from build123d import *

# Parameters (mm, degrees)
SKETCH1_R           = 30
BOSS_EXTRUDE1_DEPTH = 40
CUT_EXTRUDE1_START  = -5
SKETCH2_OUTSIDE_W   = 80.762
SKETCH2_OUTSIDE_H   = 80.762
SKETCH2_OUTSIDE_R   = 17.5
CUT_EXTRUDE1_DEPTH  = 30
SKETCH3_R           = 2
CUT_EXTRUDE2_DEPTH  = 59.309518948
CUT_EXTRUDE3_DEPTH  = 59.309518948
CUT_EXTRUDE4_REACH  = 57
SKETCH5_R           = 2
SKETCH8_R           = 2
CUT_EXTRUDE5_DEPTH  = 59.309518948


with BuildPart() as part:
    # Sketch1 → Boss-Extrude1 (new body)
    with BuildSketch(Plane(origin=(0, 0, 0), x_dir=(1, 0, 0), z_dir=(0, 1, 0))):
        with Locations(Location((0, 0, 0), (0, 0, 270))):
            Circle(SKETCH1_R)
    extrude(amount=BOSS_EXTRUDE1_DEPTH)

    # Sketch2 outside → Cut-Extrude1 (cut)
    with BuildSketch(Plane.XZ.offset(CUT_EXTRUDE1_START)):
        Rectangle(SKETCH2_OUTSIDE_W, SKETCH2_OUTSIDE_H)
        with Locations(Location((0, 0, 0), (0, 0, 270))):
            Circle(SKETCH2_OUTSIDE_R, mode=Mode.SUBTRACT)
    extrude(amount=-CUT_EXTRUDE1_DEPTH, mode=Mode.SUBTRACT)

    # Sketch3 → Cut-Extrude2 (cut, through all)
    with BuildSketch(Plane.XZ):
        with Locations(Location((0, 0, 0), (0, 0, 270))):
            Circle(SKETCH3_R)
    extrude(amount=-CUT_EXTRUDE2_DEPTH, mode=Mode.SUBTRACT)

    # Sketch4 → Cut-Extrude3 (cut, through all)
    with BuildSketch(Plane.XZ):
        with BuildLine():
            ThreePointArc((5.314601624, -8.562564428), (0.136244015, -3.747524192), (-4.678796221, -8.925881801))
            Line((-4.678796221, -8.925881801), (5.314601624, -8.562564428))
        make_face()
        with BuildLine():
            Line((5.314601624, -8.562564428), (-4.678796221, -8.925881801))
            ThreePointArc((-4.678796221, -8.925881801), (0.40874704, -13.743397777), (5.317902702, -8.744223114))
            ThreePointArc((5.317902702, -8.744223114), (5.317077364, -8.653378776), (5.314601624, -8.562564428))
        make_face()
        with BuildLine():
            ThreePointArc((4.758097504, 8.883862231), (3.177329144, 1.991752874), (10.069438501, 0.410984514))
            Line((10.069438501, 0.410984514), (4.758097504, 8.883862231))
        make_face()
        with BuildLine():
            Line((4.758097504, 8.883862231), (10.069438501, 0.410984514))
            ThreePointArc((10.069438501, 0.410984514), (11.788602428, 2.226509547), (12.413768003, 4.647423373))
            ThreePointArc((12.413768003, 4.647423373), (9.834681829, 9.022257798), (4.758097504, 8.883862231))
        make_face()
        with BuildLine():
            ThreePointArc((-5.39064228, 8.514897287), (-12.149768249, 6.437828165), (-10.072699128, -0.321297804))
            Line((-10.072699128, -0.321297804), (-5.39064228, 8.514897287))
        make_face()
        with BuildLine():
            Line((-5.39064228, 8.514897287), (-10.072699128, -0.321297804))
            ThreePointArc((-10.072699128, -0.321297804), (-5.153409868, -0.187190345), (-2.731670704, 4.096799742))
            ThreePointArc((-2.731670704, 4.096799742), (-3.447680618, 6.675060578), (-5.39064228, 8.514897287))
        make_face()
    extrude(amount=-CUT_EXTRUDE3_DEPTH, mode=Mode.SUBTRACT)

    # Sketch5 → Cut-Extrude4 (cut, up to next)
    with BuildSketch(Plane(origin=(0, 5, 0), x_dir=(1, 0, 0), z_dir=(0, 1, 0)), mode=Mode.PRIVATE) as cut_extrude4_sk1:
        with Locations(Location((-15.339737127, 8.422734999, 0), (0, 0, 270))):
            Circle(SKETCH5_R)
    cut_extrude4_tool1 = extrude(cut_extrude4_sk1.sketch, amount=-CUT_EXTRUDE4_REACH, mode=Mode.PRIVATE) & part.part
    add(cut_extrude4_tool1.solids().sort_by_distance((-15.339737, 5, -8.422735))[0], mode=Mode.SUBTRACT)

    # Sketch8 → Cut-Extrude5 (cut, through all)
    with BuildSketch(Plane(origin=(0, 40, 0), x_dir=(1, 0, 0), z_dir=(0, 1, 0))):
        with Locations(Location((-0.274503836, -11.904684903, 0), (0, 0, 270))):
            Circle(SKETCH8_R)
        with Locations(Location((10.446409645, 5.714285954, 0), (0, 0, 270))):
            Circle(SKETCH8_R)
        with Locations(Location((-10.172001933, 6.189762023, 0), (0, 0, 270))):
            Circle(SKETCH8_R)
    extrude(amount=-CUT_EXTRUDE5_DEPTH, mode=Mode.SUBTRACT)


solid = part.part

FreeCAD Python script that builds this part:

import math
import FreeCAD as App
import Part
import Sketcher

V = App.Vector
Q = App.Units.Quantity


def add_polygon(sketch, points):
    """Adds a closed chain of lines whose ends are joined by coincident constraints."""
    first, n = sketch.GeometryCount, len(points)
    for a, b in zip(points, points[1:] + points[:1]):
        sketch.addGeometry(Part.LineSegment(App.Vector(*a, 0), App.Vector(*b, 0)), False)
    for i in range(n):
        sketch.addConstraint(Sketcher.Constraint("Coincident", first + i, 2, first + (i + 1) % n, 1))

doc = App.newDocument("Part")
params = doc.addObject("Spreadsheet::Sheet", "Params")
for row, (alias, value) in enumerate([
    ("sketch1_diameter", "60 mm"),
    ("pad1_length", "40 mm"),
    ("sketch2_diameter", "35 mm"),
    ("pocket1_length", "30 mm"),
    ("sketch3_diameter", "4 mm"),
    ("sketch4_radius", "5 mm"),
    ("sketch4_radius2", "5.000002 mm"),
    ("sketch4_radius3", "5 mm"),
    ("sketch4_radius4", "5 mm"),
    ("sketch4_radius5", "5 mm"),
    ("sketch5_diameter", "4 mm"),
    ("sketch6_diameter", "4 mm"),
], start=1):
    params.set(f"A{row}", alias)
    params.set(f"B{row}", "=" + value)
    params.setAlias(f"B{row}", alias)

body = doc.addObject("PartDesign::Body", "Body")

# Sketch on XZ plane
sketch1 = body.newObject("Sketcher::SketchObject", "Sketch")
sketch1.AttachmentSupport = (doc.getObject("XZ_Plane"), [""])
sketch1.MapMode = "FlatFace"
sketch1.addGeometry(Part.Circle(V(0, 0, 0), V(0, 0, 1), 30), False)
sketch1.addConstraint(Sketcher.Constraint("Coincident", 0, 3, -1, 1))
sketch1.addConstraint(Sketcher.Constraint("Diameter", 0, Q("60 mm")))
sketch1.setExpression("Constraints[1]", "Params.sketch1_diameter")
pad1 = body.newObject("PartDesign::Pad", "Pad")
pad1.Profile = sketch1
pad1.setExpression("Length", "Params.pad1_length")
pad1.Reversed = True

# Sketch on XZ plane
sketch2 = body.newObject("Sketcher::SketchObject", "Sketch001")
sketch2.AttachmentSupport = (doc.getObject("XZ_Plane"), [""])
sketch2.MapMode = "FlatFace"
sketch2.AttachmentOffset = App.Placement(V(0, 0, -5), App.Rotation())
add_polygon(sketch2, [(-40, 40), (-40, -40), (40, -40), (40, 40)])  # lines 0-3
sketch2.addGeometry(Part.Circle(V(0, 0, 0), V(0, 0, 1), 18), False)  # 4
sketch2.addConstraint(Sketcher.Constraint("Vertical", 0))
sketch2.addConstraint(Sketcher.Constraint("Horizontal", 1))
sketch2.addConstraint(Sketcher.Constraint("Vertical", 2))
sketch2.addConstraint(Sketcher.Constraint("Horizontal", 3))
sketch2.addConstraint(Sketcher.Constraint("Coincident", 4, 3, -1, 1))
sketch2.addConstraint(Sketcher.Constraint("Symmetric", 0, 2, 2, 2, -1, 1))
sketch2.addConstraint(Sketcher.Constraint("Equal", 3, 0))
sketch2.addConstraint(Sketcher.Constraint("Diameter", 4, Q("35 mm")))
sketch2.addConstraint(Sketcher.Constraint("DistanceX", 1, 1, 1, 2, Q("80.762 mm")))
sketch2.setExpression("Constraints[11]", "Params.sketch2_diameter")
pocket1 = body.newObject("PartDesign::Pocket", "Pocket")
pocket1.Profile = sketch2
pocket1.setExpression("Length", "Params.pocket1_length")

# Sketch on XZ plane
sketch3 = body.newObject("Sketcher::SketchObject", "Sketch002")
sketch3.AttachmentSupport = (doc.getObject("XZ_Plane"), [""])
sketch3.MapMode = "FlatFace"
sketch3.addGeometry(Part.Circle(V(0, 0, 0), V(0, 0, 1), 2), False)
sketch3.addConstraint(Sketcher.Constraint("Coincident", 0, 3, -1, 1))
sketch3.addConstraint(Sketcher.Constraint("Diameter", 0, Q("4 mm")))
sketch3.setExpression("Constraints[1]", "Params.sketch3_diameter")
pocket2 = body.newObject("PartDesign::Pocket", "Pocket001")
pocket2.Profile = sketch3
pocket2.Type = "ThroughAll"

# Sketch on XZ plane
sketch4 = body.newObject("Sketcher::SketchObject", "Sketch003")
sketch4.AttachmentSupport = (doc.getObject("XZ_Plane"), [""])
sketch4.MapMode = "FlatFace"
sketch4.addGeometry(Part.ArcOfCircle(Part.Circle(V(0.317903, -8.744223, 0), V(0, 0, 1), 5), math.radians(2.082113), math.radians(182.082113)), False)
sketch4.addGeometry(Part.ArcOfCircle(Part.Circle(V(0.317903, -8.744223, 0), V(0, 0, 1), 5), math.radians(-177.917887), math.radians(0)), False)
sketch4.addGeometry(Part.ArcOfCircle(Part.Circle(V(0.317901, -8.744223, 0), V(0, 0, 1), 5.000002), math.radians(0), math.radians(2.082113)), False)
sketch4.addGeometry(Part.ArcOfCircle(Part.Circle(V(7.413768, 4.647423, 0), V(0, 0, 1), 5), math.radians(122.082113), math.radians(302.082113)), False)
sketch4.addGeometry(Part.ArcOfCircle(Part.Circle(V(7.413768, 4.647423, 0), V(0, 0, 1), 5), math.radians(-57.917887), math.radians(0)), False)
sketch4.addGeometry(Part.ArcOfCircle(Part.Circle(V(7.413768, 4.647423, 0), V(0, 0, 1), 5), math.radians(0), math.radians(122.082113)), False)
sketch4.addGeometry(Part.ArcOfCircle(Part.Circle(V(-7.731671, 4.0968, 0), V(0, 0, 1), 5), math.radians(62.082113), math.radians(242.082113)), False)
sketch4.addGeometry(Part.ArcOfCircle(Part.Circle(V(-7.731671, 4.0968, 0), V(0, 0, 1), 5), math.radians(-117.917887), math.radians(0)), False)
sketch4.addGeometry(Part.ArcOfCircle(Part.Circle(V(-7.731671, 4.0968, 0), V(0, 0, 1), 5), math.radians(0), math.radians(62.082113)), False)
sketch4.addConstraint(Sketcher.Constraint("Coincident", 0, 2, 1, 1))
sketch4.addConstraint(Sketcher.Constraint("Coincident", 1, 2, 2, 1))
sketch4.addConstraint(Sketcher.Constraint("Coincident", 2, 2, 0, 1))
sketch4.addConstraint(Sketcher.Constraint("Coincident", 3, 2, 4, 1))
sketch4.addConstraint(Sketcher.Constraint("Coincident", 4, 2, 5, 1))
sketch4.addConstraint(Sketcher.Constraint("Coincident", 5, 2, 3, 1))
sketch4.addConstraint(Sketcher.Constraint("Coincident", 6, 2, 7, 1))
sketch4.addConstraint(Sketcher.Constraint("Coincident", 7, 2, 8, 1))
sketch4.addConstraint(Sketcher.Constraint("Coincident", 8, 2, 6, 1))
sketch4.addConstraint(Sketcher.Constraint("Coincident", 1, 3, 0, 3))
sketch4.addConstraint(Sketcher.Constraint("Coincident", 4, 3, 3, 3))
sketch4.addConstraint(Sketcher.Constraint("Coincident", 7, 3, 6, 3))
sketch4.addConstraint(Sketcher.Constraint("Radius", 0, Q("5 mm")))
sketch4.addConstraint(Sketcher.Constraint("Radius", 2, Q("5.000002 mm")))
sketch4.addConstraint(Sketcher.Constraint("Radius", 3, Q("5 mm")))
sketch4.addConstraint(Sketcher.Constraint("Radius", 5, Q("5 mm")))
sketch4.addConstraint(Sketcher.Constraint("Radius", 6, Q("5 mm")))
sketch4.addConstraint(Sketcher.Constraint("Radius", 8, Q("5 mm")))
sketch4.addConstraint(Sketcher.Constraint("DistanceX", -1, 1, 2, 3, Q("0.317901 mm")))
sketch4.addConstraint(Sketcher.Constraint("DistanceY", -1, 1, 6, 3, Q("4.0968 mm")))
sketch4.addConstraint(Sketcher.Constraint("DistanceX", -1, 1, 2, 2, Q("5.314602 mm")))
sketch4.addConstraint(Sketcher.Constraint("DistanceX", 6, 2, -1, 1, Q("10.072699 mm")))
sketch4.addConstraint(Sketcher.Constraint("DistanceY", -1, 1, 7, 2, Q("4.0968 mm")))
sketch4.addConstraint(Sketcher.Constraint("DistanceX", 0, 2, 0, 3, Q("4.996699 mm")))
sketch4.addConstraint(Sketcher.Constraint("DistanceX", -1, 1, 3, 3, Q("7.413768 mm")))
sketch4.addConstraint(Sketcher.Constraint("DistanceX", 6, 3, -1, 1, Q("7.731671 mm")))
sketch4.addConstraint(Sketcher.Constraint("DistanceY", 0, 2, -1, 1, Q("8.925882 mm")))
sketch4.addConstraint(Sketcher.Constraint("DistanceX", -1, 1, 3, 2, Q("10.069439 mm")))
sketch4.addConstraint(Sketcher.Constraint("DistanceY", 0, 2, 1, 2, Q("0.181659 mm")))
sketch4.addConstraint(Sketcher.Constraint("DistanceY", 2, 2, 3, 2, Q("8.973549 mm")))
sketch4.addConstraint(Sketcher.Constraint("DistanceY", 3, 2, 4, 2, Q("4.236439 mm")))
sketch4.addConstraint(Sketcher.Constraint("DistanceX", 5, 2, 4, 3, Q("2.65567 mm")))
sketch4.addConstraint(Sketcher.Constraint("DistanceX", 7, 3, 8, 2, Q("2.341028 mm")))
sketch4.setExpression("Constraints[12]", "Params.sketch4_radius")
sketch4.setExpression("Constraints[13]", "Params.sketch4_radius2")
sketch4.setExpression("Constraints[14]", "Params.sketch4_radius3")
sketch4.setExpression("Constraints[15]", "Params.sketch4_radius4")
sketch4.setExpression("Constraints[16]", "Params.sketch4_radius5")
pocket3 = body.newObject("PartDesign::Pocket", "Pocket002")
pocket3.Profile = sketch4
pocket3.Type = "ThroughAll"

# Sketch on XZ plane
sketch5 = body.newObject("Sketcher::SketchObject", "Sketch004")
sketch5.AttachmentSupport = (doc.getObject("XZ_Plane"), [""])
sketch5.MapMode = "FlatFace"
sketch5.AttachmentOffset = App.Placement(V(0, 0, -5), App.Rotation())
sketch5.addGeometry(Part.Circle(V(-15.3, -8.4, 0), V(0, 0, 1), 2), False)
sketch5.addConstraint(Sketcher.Constraint("Diameter", 0, Q("4 mm")))
sketch5.addConstraint(Sketcher.Constraint("DistanceX", 0, 3, -1, 1, Q("15.339737 mm")))
sketch5.addConstraint(Sketcher.Constraint("DistanceY", 0, 3, -1, 1, Q("8.422735 mm")))
sketch5.setExpression("Constraints[0]", "Params.sketch5_diameter")
pocket4 = body.newObject("PartDesign::Pocket", "Pocket003")
pocket4.Profile = sketch5
pocket4.Type = "UpToFirst"
pocket4.Reversed = True

# Sketch on XZ plane
sketch6 = body.newObject("Sketcher::SketchObject", "Sketch005")
sketch6.AttachmentSupport = (doc.getObject("XZ_Plane"), [""])
sketch6.MapMode = "FlatFace"
sketch6.AttachmentOffset = App.Placement(V(0, 0, -40), App.Rotation())
sketch6.addGeometry(Part.Circle(V(-0.3, 11.9, 0), V(0, 0, 1), 2), False)
sketch6.addGeometry(Part.Circle(V(10.4, -5.7, 0), V(0, 0, 1), 2), False)
sketch6.addGeometry(Part.Circle(V(-10.2, -6.2, 0), V(0, 0, 1), 2), False)
sketch6.addConstraint(Sketcher.Constraint("Equal", 0, 1))
sketch6.addConstraint(Sketcher.Constraint("Equal", 1, 2))
sketch6.addConstraint(Sketcher.Constraint("Diameter", 0, Q("4 mm")))
sketch6.addConstraint(Sketcher.Constraint("DistanceX", 2, 3, -1, 1, Q("10.172002 mm")))
sketch6.addConstraint(Sketcher.Constraint("DistanceX", 2, 3, 0, 3, Q("9.897498 mm")))
sketch6.addConstraint(Sketcher.Constraint("DistanceX", -1, 1, 1, 3, Q("10.44641 mm")))
sketch6.addConstraint(Sketcher.Constraint("DistanceY", 1, 3, 0, 3, Q("17.618971 mm")))
sketch6.addConstraint(Sketcher.Constraint("DistanceY", -1, 1, 0, 3, Q("11.904685 mm")))
sketch6.addConstraint(Sketcher.Constraint("DistanceY", 2, 3, -1, 1, Q("6.189762 mm")))
sketch6.setExpression("Constraints[2]", "Params.sketch6_diameter")
pocket5 = body.newObject("PartDesign::Pocket", "Pocket004")
pocket5.Profile = sketch6
pocket5.Type = "ThroughAll"
pocket5.Reversed = True

doc.recompute()
